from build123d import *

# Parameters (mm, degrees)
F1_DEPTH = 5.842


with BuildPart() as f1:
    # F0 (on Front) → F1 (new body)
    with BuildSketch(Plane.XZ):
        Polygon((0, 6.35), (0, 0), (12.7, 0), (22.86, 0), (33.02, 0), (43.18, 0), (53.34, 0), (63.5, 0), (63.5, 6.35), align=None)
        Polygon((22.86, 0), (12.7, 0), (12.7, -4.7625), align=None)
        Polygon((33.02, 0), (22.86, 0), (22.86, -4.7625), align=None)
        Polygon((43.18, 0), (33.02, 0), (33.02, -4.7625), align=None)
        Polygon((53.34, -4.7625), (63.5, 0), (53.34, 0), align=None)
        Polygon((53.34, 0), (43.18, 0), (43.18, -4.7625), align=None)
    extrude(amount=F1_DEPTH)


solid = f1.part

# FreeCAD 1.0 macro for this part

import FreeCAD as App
import Part
import Sketcher
Q = App.Units.Quantity


def add_polygon(sketch, points):
    """Adds a closed chain of lines whose ends are joined by coincident constraints."""
    first, n = sketch.GeometryCount, len(points)
    for a, b in zip(points, points[1:] + points[:1]):
        sketch.addGeometry(Part.LineSegment(App.Vector(*a, 0), App.Vector(*b, 0)), False)
    for i in range(n):
        sketch.addConstraint(Sketcher.Constraint("Coincident", first + i, 2, first + (i + 1) % n, 1))

doc = App.newDocument("Part")
body = doc.addObject("PartDesign::Body", "Body")

# Sketch on XZ plane
sketch1 = body.newObject("Sketcher::SketchObject", "Sketch")
sketch1.AttachmentSupport = (doc.getObject("XZ_Plane"), [""])
sketch1.MapMode = "FlatFace"
add_polygon(sketch1, [(0, 6.3), (0, 0), (12.7, 0), (12.7, -4.8), (22.9, 0), (22.9, -4.8), (33, 0), (33, -4.8), (43.2, 0), (43.2, -4.8), (53.3, 0), (53.3, -4.8), (63.5, 0), (63.5, 6.3)])  # lines 0-13
sketch1.addConstraint([
    Sketcher.Constraint("Vertical", 0),
    Sketcher.Constraint("Horizontal", 1),
    Sketcher.Constraint("Vertical", 2),
    Sketcher.Constraint("Vertical", 4),
    Sketcher.Constraint("Vertical", 6),
    Sketcher.Constraint("Vertical", 8),
    Sketcher.Constraint("Vertical", 10),
    Sketcher.Constraint("Vertical", 12),
    Sketcher.Constraint("Horizontal", 13),
    Sketcher.Constraint("Coincident", 0, 2, -1, 1),
    Sketcher.Constraint("PointOnObject", 3, 2, -1),
    Sketcher.Constraint("PointOnObject", 5, 2, -1),
    Sketcher.Constraint("PointOnObject", 7, 2, -1),
    Sketcher.Constraint("PointOnObject", 9, 2, -1),
    Sketcher.Constraint("PointOnObject", 11, 2, -1),
    Sketcher.Constraint("Parallel", 3, 5),
    Sketcher.Constraint("Parallel", 5, 7),
    Sketcher.Constraint("Parallel", 7, 9),
    Sketcher.Constraint("Parallel", 9, 11),
    Sketcher.Constraint("Horizontal", 2, 2, 4, 2),
    Sketcher.Constraint("Horizontal", 4, 2, 6, 2),
    Sketcher.Constraint("Horizontal", 6, 2, 8, 2),
    Sketcher.Constraint("Horizontal", 8, 2, 10, 2),
    Sketcher.Constraint("DistanceX", 1, 1, 1, 2, Q("0.5 in")),
    Sketcher.Constraint("DistanceX", 13, 2, 13, 1, Q("2.5 in")),
    Sketcher.Constraint("DistanceY", 0, 2, 0, 1, Q("0.25 in")),
    Sketcher.Constraint("DistanceY", 2, 2, 2, 1, Q("0.1875 in")),
])
pad1 = body.newObject("PartDesign::Pad", "Pad")
pad1.Profile = sketch1
pad1.Length = Q("0.23 in")

doc.recompute()
